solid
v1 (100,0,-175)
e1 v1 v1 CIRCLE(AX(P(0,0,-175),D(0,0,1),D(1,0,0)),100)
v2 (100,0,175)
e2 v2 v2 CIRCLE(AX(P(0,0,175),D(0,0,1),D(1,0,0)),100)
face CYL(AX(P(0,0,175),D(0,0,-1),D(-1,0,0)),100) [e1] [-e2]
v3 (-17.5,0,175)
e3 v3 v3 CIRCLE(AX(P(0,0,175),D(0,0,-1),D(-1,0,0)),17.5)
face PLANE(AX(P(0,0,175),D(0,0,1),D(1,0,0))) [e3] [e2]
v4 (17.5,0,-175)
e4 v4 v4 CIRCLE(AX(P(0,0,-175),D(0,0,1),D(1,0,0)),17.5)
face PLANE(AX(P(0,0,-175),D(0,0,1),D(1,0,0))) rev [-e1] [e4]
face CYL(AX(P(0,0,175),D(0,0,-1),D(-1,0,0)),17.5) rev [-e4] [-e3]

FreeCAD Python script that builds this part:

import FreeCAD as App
import Part
import Sketcher
from FreeCAD import Vector

doc = App.newDocument("Part")
body = doc.addObject("PartDesign::Body", "Body")

sketch1 = body.newObject("Sketcher::SketchObject", "Sketch")
sketch1.AttachmentSupport = (doc.getObject("XY_Plane"), [""])
sketch1.MapMode = "FlatFace"
sketch1.addGeometry(Part.Circle(Vector(0, 0, 0), Vector(0, 0, 1), 100), False)
sketch1.addConstraint([
    Sketcher.Constraint("Coincident", 0, 3, -1, 1),
    Sketcher.Constraint("Diameter", 0, 200.0),
])
pad1 = body.newObject("PartDesign::Pad", "Pad")
pad1.Profile = sketch1
pad1.Length = 350
pad1.Midplane = True

sketch2 = body.newObject("Sketcher::SketchObject", "Sketch001")
sketch2.AttachmentSupport = (doc.getObject("XY_Plane"), [""])
sketch2.MapMode = "FlatFace"
sketch2.AttachmentOffset = App.Placement(Vector(0, 0, -175), App.Rotation())
sketch2.addGeometry(Part.Circle(Vector(0, 0, 0), Vector(0, 0, 1), 17.5), False)
sketch2.addConstraint([
    Sketcher.Constraint("Coincident", 0, 3, -1, 1),
    Sketcher.Constraint("Diameter", 0, 35.0),
])
pocket1 = body.newObject("PartDesign::Pocket", "Pocket")
pocket1.Profile = sketch2
pocket1.Type = "ThroughAll"
pocket1.Midplane = True

doc.recompute()
